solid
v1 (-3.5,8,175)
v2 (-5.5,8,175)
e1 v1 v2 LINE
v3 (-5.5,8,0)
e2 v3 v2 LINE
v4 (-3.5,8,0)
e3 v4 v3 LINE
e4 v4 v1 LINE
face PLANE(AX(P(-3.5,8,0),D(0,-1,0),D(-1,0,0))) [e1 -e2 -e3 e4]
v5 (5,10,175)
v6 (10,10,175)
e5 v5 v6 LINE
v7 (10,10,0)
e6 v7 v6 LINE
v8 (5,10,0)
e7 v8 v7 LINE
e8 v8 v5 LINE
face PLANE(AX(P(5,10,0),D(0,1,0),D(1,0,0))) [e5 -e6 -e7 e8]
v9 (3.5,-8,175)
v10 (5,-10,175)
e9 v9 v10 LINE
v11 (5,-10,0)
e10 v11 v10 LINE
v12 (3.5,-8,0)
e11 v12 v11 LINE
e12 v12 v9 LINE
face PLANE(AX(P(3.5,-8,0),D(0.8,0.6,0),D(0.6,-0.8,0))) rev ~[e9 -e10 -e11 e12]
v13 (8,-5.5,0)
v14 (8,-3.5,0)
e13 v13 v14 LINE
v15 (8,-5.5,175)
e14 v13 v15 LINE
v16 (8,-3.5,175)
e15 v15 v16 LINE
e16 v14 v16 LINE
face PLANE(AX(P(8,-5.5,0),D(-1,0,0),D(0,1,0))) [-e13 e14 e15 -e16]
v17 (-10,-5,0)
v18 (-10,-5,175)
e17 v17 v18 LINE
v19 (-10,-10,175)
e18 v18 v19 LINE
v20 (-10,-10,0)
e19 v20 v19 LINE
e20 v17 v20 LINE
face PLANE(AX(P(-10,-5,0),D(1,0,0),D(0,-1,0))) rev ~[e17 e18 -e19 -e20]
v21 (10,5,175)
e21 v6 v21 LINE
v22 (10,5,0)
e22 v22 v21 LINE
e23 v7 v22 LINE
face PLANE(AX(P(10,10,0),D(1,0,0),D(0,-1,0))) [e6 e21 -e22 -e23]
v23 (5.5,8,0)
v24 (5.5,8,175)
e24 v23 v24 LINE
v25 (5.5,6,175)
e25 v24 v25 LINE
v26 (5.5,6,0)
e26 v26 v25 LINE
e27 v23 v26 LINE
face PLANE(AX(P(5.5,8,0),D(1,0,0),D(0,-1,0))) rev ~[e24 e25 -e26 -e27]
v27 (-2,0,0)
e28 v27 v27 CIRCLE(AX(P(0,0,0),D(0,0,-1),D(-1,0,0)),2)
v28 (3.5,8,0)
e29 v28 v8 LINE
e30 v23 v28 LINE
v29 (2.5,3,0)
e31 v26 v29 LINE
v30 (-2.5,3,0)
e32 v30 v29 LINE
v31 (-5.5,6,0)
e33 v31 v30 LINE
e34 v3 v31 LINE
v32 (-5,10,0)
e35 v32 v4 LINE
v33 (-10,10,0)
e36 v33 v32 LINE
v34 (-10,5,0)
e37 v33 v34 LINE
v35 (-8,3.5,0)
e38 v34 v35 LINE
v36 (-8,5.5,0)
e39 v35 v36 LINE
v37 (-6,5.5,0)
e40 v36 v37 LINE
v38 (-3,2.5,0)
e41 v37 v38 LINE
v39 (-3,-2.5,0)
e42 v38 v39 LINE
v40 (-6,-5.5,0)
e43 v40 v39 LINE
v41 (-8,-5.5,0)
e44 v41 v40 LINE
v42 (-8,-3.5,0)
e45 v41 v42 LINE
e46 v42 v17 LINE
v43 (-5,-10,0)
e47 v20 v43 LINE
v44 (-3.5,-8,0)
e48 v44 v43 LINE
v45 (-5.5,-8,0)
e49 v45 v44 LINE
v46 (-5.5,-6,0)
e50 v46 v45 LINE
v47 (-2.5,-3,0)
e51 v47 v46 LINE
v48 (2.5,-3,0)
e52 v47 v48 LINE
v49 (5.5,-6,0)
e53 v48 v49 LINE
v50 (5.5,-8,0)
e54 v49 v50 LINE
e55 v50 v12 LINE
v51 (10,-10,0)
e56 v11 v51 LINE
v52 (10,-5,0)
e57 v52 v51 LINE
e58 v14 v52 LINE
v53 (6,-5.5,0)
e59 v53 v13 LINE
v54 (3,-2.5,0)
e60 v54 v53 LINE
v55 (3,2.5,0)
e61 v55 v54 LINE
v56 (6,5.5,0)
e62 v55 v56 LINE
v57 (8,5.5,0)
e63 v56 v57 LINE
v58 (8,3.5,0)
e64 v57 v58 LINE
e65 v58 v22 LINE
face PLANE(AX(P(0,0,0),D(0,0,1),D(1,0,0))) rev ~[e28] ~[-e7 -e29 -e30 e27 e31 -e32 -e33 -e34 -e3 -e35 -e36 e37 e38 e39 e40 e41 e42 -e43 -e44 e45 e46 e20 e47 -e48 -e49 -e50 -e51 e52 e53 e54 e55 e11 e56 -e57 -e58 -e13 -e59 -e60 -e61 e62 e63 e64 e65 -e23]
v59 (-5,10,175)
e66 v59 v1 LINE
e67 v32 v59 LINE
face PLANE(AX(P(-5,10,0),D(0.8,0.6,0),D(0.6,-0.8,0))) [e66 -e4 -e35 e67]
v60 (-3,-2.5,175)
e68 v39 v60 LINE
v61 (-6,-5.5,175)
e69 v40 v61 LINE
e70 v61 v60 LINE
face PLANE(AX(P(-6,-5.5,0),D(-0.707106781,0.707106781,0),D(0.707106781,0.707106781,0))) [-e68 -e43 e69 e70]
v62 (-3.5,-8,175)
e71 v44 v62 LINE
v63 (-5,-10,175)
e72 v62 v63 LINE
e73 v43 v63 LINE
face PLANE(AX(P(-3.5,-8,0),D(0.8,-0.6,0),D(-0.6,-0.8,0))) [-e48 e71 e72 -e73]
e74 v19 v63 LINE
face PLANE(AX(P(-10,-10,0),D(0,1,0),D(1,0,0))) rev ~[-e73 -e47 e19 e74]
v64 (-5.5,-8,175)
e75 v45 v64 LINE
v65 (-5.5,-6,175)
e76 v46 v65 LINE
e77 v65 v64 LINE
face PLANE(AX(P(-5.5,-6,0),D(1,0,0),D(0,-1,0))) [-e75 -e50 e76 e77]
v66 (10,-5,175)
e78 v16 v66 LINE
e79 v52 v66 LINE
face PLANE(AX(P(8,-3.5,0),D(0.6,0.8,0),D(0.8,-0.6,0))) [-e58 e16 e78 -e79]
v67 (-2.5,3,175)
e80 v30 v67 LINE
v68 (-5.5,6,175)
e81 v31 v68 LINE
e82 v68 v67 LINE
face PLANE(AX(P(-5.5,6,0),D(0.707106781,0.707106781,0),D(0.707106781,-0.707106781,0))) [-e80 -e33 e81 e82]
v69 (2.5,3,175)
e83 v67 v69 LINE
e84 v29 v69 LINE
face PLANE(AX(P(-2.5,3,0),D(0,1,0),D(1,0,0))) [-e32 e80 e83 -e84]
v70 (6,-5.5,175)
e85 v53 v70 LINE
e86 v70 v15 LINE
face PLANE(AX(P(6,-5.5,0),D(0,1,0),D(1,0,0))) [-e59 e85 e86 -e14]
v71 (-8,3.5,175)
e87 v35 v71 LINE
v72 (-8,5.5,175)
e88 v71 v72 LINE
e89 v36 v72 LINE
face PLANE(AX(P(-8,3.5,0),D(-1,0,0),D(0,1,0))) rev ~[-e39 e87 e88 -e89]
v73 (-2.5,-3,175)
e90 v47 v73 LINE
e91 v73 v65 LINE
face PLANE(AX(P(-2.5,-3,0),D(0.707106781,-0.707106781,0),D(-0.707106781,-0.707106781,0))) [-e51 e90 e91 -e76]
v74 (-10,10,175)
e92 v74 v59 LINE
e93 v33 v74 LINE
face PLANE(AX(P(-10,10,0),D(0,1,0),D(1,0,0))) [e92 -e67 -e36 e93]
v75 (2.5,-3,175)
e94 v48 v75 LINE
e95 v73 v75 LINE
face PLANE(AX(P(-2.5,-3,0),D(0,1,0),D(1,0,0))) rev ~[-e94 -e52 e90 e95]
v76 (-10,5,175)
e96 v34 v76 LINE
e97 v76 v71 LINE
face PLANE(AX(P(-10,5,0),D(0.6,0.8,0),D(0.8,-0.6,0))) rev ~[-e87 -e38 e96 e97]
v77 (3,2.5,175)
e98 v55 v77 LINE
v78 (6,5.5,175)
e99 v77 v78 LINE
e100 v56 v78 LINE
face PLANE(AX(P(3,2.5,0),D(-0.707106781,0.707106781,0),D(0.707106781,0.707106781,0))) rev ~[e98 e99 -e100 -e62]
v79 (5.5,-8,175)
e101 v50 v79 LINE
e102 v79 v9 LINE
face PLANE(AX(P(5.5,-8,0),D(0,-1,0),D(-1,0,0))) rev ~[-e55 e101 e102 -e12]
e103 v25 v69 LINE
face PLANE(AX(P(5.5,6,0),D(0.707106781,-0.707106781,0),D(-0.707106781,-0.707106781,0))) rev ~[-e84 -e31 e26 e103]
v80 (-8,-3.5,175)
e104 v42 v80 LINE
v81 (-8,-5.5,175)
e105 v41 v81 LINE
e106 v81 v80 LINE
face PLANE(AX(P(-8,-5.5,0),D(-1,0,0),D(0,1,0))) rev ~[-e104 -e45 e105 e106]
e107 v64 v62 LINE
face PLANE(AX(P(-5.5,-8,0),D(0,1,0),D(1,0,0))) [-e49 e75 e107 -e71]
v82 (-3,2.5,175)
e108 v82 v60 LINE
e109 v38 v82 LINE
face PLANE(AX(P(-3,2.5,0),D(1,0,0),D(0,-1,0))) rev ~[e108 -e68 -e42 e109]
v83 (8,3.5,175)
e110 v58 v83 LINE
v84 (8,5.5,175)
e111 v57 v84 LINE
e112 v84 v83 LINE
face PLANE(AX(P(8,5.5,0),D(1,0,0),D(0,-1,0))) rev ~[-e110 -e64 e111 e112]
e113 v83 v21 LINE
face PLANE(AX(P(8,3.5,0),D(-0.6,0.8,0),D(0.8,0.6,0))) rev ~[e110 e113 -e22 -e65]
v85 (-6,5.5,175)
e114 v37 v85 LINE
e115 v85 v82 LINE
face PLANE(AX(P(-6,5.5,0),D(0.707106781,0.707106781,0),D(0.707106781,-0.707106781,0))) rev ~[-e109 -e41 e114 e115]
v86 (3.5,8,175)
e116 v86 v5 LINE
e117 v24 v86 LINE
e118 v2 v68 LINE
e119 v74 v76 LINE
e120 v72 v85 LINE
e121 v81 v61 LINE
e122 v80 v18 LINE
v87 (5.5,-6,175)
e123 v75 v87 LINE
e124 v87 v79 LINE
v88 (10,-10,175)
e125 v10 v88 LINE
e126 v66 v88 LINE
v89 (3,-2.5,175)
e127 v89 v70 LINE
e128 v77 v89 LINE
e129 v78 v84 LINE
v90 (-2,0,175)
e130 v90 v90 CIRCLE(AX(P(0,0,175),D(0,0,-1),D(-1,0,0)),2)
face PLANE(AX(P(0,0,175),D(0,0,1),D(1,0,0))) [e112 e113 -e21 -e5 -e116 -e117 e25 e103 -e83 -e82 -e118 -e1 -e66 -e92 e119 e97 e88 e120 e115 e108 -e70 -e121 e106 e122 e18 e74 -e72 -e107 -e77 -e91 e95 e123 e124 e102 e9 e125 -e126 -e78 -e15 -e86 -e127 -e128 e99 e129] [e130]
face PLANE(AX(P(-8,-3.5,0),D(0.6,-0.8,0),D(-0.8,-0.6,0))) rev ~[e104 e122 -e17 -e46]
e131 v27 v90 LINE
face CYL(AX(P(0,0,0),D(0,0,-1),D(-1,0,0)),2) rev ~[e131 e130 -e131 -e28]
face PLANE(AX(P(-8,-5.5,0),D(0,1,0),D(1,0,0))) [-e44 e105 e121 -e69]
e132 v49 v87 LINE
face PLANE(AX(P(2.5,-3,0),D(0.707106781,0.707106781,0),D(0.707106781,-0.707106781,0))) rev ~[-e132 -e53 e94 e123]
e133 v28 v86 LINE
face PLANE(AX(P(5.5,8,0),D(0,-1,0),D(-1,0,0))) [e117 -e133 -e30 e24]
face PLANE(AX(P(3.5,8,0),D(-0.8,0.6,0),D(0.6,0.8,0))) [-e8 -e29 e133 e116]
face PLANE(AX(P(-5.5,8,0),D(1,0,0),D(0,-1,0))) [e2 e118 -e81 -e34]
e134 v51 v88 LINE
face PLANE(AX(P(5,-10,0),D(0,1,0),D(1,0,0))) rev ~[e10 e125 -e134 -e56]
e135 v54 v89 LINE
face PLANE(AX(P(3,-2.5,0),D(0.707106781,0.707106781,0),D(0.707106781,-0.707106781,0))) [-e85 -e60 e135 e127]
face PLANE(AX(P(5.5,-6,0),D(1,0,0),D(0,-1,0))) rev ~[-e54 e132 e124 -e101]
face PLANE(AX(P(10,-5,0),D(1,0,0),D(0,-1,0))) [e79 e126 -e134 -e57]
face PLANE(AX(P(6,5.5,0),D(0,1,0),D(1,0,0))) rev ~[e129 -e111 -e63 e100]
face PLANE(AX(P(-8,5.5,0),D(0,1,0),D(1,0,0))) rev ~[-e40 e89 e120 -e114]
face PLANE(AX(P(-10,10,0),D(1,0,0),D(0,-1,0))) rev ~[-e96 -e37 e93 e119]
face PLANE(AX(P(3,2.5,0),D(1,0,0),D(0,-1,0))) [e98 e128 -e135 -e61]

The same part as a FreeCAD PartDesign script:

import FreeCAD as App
import Part
import Sketcher

V = App.Vector
Q = App.Units.Quantity

doc = App.newDocument("Part")
body = doc.addObject("PartDesign::Body", "Body")

sketch1 = body.newObject("Sketcher::SketchObject", "Sketch")
sketch1.AttachmentSupport = (doc.getObject("XY_Plane"), [""])
sketch1.MapMode = "FlatFace"
sketch1.addGeometry([
    Part.LineSegment(V(-3.5, 8, 0), V(-5, 10, 0)),
    Part.LineSegment(V(-5, 10, 0), V(-10, 10, 0)),
    Part.LineSegment(V(-10, 10, 0), V(-10, 5, 0)),
    Part.LineSegment(V(-10, 5, 0), V(-8, 3.5, 0)),
    Part.LineSegment(V(-8, 3.5, 0), V(-8, 5.5, 0)),
    Part.LineSegment(V(-8, 5.5, 0), V(-6, 5.5, 0)),
    Part.LineSegment(V(-6, 5.5, 0), V(-3, 2.5, 0)),
    Part.LineSegment(V(-3, 2.5, 0), V(-3, -2.5, 0)),
    Part.LineSegment(V(-3, -2.5, 0), V(-6, -5.5, 0)),
    Part.LineSegment(V(-6, -5.5, 0), V(-8, -5.5, 0)),
    Part.LineSegment(V(-8, -5.5, 0), V(-8, -3.5, 0)),
    Part.LineSegment(V(-8, -3.5, 0), V(-10, -5, 0)),
    Part.LineSegment(V(-10, -5, 0), V(-10, -10, 0)),
    Part.LineSegment(V(-10, -10, 0), V(-5, -10, 0)),
    Part.LineSegment(V(-5, -10, 0), V(-3.5, -8, 0)),
    Part.LineSegment(V(-3.5, -8, 0), V(-5.5, -8, 0)),
    Part.LineSegment(V(-5.5, -8, 0), V(-5.5, -6, 0)),
    Part.LineSegment(V(-5.5, -6, 0), V(-2.5, -3, 0)),
    Part.LineSegment(V(-2.5, -3, 0), V(2.5, -3, 0)),
    Part.LineSegment(V(2.5, -3, 0), V(5.5, -6, 0)),
    Part.LineSegment(V(5.5, -6, 0), V(5.5, -8, 0)),
    Part.LineSegment(V(5.5, -8, 0), V(3.5, -8, 0)),
    Part.LineSegment(V(3.5, -8, 0), V(5, -10, 0)),
    Part.LineSegment(V(5, -10, 0), V(10, -10, 0)),
    Part.LineSegment(V(10, -10, 0), V(10, -5, 0)),
    Part.LineSegment(V(10, -5, 0), V(8, -3.5, 0)),
    Part.LineSegment(V(8, -3.5, 0), V(8, -5.5, 0)),
    Part.LineSegment(V(8, -5.5, 0), V(6, -5.5, 0)),
    Part.LineSegment(V(6, -5.5, 0), V(3, -2.5, 0)),
    Part.LineSegment(V(3, -2.5, 0), V(3, 2.5, 0)),
    Part.LineSegment(V(3, 2.5, 0), V(6, 5.5, 0)),
    Part.LineSegment(V(6, 5.5, 0), V(8, 5.5, 0)),
    Part.LineSegment(V(8, 5.5, 0), V(8, 3.5, 0)),
    Part.LineSegment(V(8, 3.5, 0), V(10, 5, 0)),
    Part.LineSegment(V(10, 5, 0), V(10, 10, 0)),
    Part.LineSegment(V(10, 10, 0), V(5, 10, 0)),
    Part.LineSegment(V(5, 10, 0), V(3.5, 8, 0)),
    Part.LineSegment(V(3.5, 8, 0), V(5.5, 8, 0)),
    Part.LineSegment(V(5.5, 8, 0), V(5.5, 6, 0)),
    Part.LineSegment(V(5.5, 6, 0), V(2.5, 3, 0)),
    Part.LineSegment(V(2.5, 3, 0), V(-2.5, 3, 0)),
    Part.LineSegment(V(-2.5, 3, 0), V(-5.5, 6, 0)),
    Part.LineSegment(V(-5.5, 6, 0), V(-5.5, 8, 0)),
    Part.LineSegment(V(-5.5, 8, 0), V(-3.5, 8, 0)),
], False)
sketch1.addConstraint([
    Sketcher.Constraint("Coincident", 0, 2, 1, 1),
    Sketcher.Constraint("Coincident", 1, 2, 2, 1),
    Sketcher.Constraint("Coincident", 2, 2, 3, 1),
    Sketcher.Constraint("Coincident", 3, 2, 4, 1),
    Sketcher.Constraint("Coincident", 4, 2, 5, 1),
    Sketcher.Constraint("Coincident", 5, 2, 6, 1),
    Sketcher.Constraint("Coincident", 6, 2, 7, 1),
    Sketcher.Constraint("Coincident", 7, 2, 8, 1),
    Sketcher.Constraint("Coincident", 8, 2, 9, 1),
    Sketcher.Constraint("Coincident", 9, 2, 10, 1),
    Sketcher.Constraint("Coincident", 10, 2, 11, 1),
    Sketcher.Constraint("Coincident", 11, 2, 12, 1),
    Sketcher.Constraint("Coincident", 12, 2, 13, 1),
    Sketcher.Constraint("Coincident", 13, 2, 14, 1),
    Sketcher.Constraint("Coincident", 14, 2, 15, 1),
    Sketcher.Constraint("Coincident", 15, 2, 16, 1),
    Sketcher.Constraint("Coincident", 16, 2, 17, 1),
    Sketcher.Constraint("Coincident", 17, 2, 18, 1),
    Sketcher.Constraint("Coincident", 18, 2, 19, 1),
    Sketcher.Constraint("Coincident", 19, 2, 20, 1),
    Sketcher.Constraint("Coincident", 20, 2, 21, 1),
    Sketcher.Constraint("Coincident", 21, 2, 22, 1),
    Sketcher.Constraint("Coincident", 22, 2, 23, 1),
    Sketcher.Constraint("Coincident", 23, 2, 24, 1),
    Sketcher.Constraint("Coincident", 24, 2, 25, 1),
    Sketcher.Constraint("Coincident", 25, 2, 26, 1),
    Sketcher.Constraint("Coincident", 26, 2, 27, 1),
    Sketcher.Constraint("Coincident", 27, 2, 28, 1),
    Sketcher.Constraint("Coincident", 28, 2, 29, 1),
    Sketcher.Constraint("Coincident", 29, 2, 30, 1),
    Sketcher.Constraint("Coincident", 30, 2, 31, 1),
    Sketcher.Constraint("Coincident", 31, 2, 32, 1),
    Sketcher.Constraint("Coincident", 32, 2, 33, 1),
    Sketcher.Constraint("Coincident", 33, 2, 34, 1),
    Sketcher.Constraint("Coincident", 34, 2, 35, 1),
    Sketcher.Constraint("Coincident", 35, 2, 36, 1),
    Sketcher.Constraint("Coincident", 36, 2, 37, 1),
    Sketcher.Constraint("Coincident", 37, 2, 38, 1),
    Sketcher.Constraint("Coincident", 38, 2, 39, 1),
    Sketcher.Constraint("Coincident", 39, 2, 40, 1),
    Sketcher.Constraint("Coincident", 40, 2, 41, 1),
    Sketcher.Constraint("Coincident", 41, 2, 42, 1),
    Sketcher.Constraint("Coincident", 42, 2, 43, 1),
    Sketcher.Constraint("Coincident", 43, 2, 0, 1),
    Sketcher.Constraint("Horizontal", 1),
    Sketcher.Constraint("Vertical", 2),
    Sketcher.Constraint("Vertical", 4),
    Sketcher.Constraint("Horizontal", 5),
    Sketcher.Constraint("Vertical", 7),
    Sketcher.Constraint("Horizontal", 9),
    Sketcher.Constraint("Vertical", 10),
    Sketcher.Constraint("Vertical", 12),
    Sketcher.Constraint("Horizontal", 13),
    Sketcher.Constraint("Horizontal", 15),
    Sketcher.Constraint("Vertical", 16),
    Sketcher.Constraint("Horizontal", 18),
    Sketcher.Constraint("Vertical", 20),
    Sketcher.Constraint("Horizontal", 21),
    Sketcher.Constraint("Horizontal", 23),
    Sketcher.Constraint("Vertical", 24),
    Sketcher.Constraint("Vertical", 26),
    Sketcher.Constraint("Horizontal", 27),
    Sketcher.Constraint("Vertical", 29),
    Sketcher.Constraint("Horizontal", 31),
    Sketcher.Constraint("Vertical", 32),
    Sketcher.Constraint("Vertical", 34),
    Sketcher.Constraint("Horizontal", 35),
    Sketcher.Constraint("Horizontal", 37),
    Sketcher.Constraint("Vertical", 38),
    Sketcher.Constraint("Horizontal", 40),
    Sketcher.Constraint("Vertical", 42),
    Sketcher.Constraint("Horizontal", 43),
    Sketcher.Constraint("Symmetric", 0, 2, 22, 2, -1, 1),
    Sketcher.Constraint("Symmetric", 2, 2, 24, 2, -1, 1),
    Sketcher.Constraint("Symmetric", 3, 2, 25, 2, -1, 1),
    Sketcher.Constraint("Symmetric", 5, 2, 27, 2, -1, 1),
    Sketcher.Constraint("Symmetric", 6, 2, 28, 2, -1, 1),
    Sketcher.Constraint("Symmetric", 8, 2, 30, 2, -1, 1),
    Sketcher.Constraint("Symmetric", 10, 2, 32, 2, -1, 1),
    Sketcher.Constraint("Symmetric", 11, 2, 33, 2, -1, 1),
    Sketcher.Constraint("Symmetric", 13, 2, 35, 2, -1, 1),
    Sketcher.Constraint("Symmetric", 14, 2, 36, 2, -1, 1),
    Sketcher.Constraint("Symmetric", 16, 2, 38, 2, -1, 1),
    Sketcher.Constraint("Symmetric", 17, 2, 39, 2, -1, 1),
    Sketcher.Constraint("Symmetric", 19, 2, 41, 2, -1, 1),
    Sketcher.Constraint("Symmetric", 21, 2, 43, 2, -1, 1),
    Sketcher.Constraint("Symmetric", 16, 2, 19, 2, -2),
    Sketcher.Constraint("Symmetric", 14, 2, 21, 2, -2),
    Sketcher.Constraint("Symmetric", 13, 2, 22, 2, -2),
    Sketcher.Constraint("Symmetric", 11, 2, 24, 2, -2),
    Sketcher.Constraint("Symmetric", 10, 2, 25, 2, -2),
    Sketcher.Constraint("Symmetric", 8, 2, 27, 2, -2),
    Sketcher.Constraint("Perpendicular", 6, 8),
    Sketcher.Constraint("Perpendicular", 0, 11),
    Sketcher.Constraint("Parallel", 8, 17),
    Sketcher.Constraint("Perpendicular", 17, 19),
    Sketcher.Constraint("Perpendicular", 28, 30),
    Sketcher.Constraint("Perpendicular", 39, 41),
    Sketcher.Constraint("Horizontal", 7, 2, 28, 2),
    Sketcher.Constraint("Equal", 9, 15),
    Sketcher.Constraint("Equal", 13, 18),
    Sketcher.Constraint("Equal", 40, 2),
    Sketcher.Constraint("Equal", 43, 4),
    Sketcher.Constraint("Equal", 2, 7),
    Sketcher.Constraint("Equal", 10, 16),
    Sketcher.Constraint("Equal", 0, 3),
    Sketcher.Constraint("Equal", 8, 17),
    Sketcher.Constraint("DistanceX", 1, 2, 1, 1, Q("5 mm")),
    Sketcher.Constraint("DistanceX", 5, 1, 5, 2, Q("2 mm")),
    Sketcher.Constraint("DistanceX", 0, 2, -1, 1, Q("5 mm")),
    Sketcher.Constraint("DistanceX", 6, 2, -1, 1, Q("3 mm")),
    Sketcher.Constraint("DistanceX", 2, 2, 3, 2, Q("2 mm")),
])
pad1 = body.newObject("PartDesign::Pad", "Pad")
pad1.Profile = sketch1
pad1.Length = 175

sketch2 = body.newObject("Sketcher::SketchObject", "Sketch001")
sketch2.AttachmentSupport = (doc.getObject("XY_Plane"), [""])
sketch2.MapMode = "FlatFace"
sketch2.addGeometry(Part.Circle(V(0, 0, 0), V(0, 0, 1), 2), False)
sketch2.addConstraint([
    Sketcher.Constraint("Coincident", 0, 3, -1, 1),
    Sketcher.Constraint("Diameter", 0, Q("4 mm")),
])
pocket1 = body.newObject("PartDesign::Pocket", "Pocket")
pocket1.Profile = sketch2
pocket1.Type = "ThroughAll"
pocket1.Reversed = True

doc.recompute()
